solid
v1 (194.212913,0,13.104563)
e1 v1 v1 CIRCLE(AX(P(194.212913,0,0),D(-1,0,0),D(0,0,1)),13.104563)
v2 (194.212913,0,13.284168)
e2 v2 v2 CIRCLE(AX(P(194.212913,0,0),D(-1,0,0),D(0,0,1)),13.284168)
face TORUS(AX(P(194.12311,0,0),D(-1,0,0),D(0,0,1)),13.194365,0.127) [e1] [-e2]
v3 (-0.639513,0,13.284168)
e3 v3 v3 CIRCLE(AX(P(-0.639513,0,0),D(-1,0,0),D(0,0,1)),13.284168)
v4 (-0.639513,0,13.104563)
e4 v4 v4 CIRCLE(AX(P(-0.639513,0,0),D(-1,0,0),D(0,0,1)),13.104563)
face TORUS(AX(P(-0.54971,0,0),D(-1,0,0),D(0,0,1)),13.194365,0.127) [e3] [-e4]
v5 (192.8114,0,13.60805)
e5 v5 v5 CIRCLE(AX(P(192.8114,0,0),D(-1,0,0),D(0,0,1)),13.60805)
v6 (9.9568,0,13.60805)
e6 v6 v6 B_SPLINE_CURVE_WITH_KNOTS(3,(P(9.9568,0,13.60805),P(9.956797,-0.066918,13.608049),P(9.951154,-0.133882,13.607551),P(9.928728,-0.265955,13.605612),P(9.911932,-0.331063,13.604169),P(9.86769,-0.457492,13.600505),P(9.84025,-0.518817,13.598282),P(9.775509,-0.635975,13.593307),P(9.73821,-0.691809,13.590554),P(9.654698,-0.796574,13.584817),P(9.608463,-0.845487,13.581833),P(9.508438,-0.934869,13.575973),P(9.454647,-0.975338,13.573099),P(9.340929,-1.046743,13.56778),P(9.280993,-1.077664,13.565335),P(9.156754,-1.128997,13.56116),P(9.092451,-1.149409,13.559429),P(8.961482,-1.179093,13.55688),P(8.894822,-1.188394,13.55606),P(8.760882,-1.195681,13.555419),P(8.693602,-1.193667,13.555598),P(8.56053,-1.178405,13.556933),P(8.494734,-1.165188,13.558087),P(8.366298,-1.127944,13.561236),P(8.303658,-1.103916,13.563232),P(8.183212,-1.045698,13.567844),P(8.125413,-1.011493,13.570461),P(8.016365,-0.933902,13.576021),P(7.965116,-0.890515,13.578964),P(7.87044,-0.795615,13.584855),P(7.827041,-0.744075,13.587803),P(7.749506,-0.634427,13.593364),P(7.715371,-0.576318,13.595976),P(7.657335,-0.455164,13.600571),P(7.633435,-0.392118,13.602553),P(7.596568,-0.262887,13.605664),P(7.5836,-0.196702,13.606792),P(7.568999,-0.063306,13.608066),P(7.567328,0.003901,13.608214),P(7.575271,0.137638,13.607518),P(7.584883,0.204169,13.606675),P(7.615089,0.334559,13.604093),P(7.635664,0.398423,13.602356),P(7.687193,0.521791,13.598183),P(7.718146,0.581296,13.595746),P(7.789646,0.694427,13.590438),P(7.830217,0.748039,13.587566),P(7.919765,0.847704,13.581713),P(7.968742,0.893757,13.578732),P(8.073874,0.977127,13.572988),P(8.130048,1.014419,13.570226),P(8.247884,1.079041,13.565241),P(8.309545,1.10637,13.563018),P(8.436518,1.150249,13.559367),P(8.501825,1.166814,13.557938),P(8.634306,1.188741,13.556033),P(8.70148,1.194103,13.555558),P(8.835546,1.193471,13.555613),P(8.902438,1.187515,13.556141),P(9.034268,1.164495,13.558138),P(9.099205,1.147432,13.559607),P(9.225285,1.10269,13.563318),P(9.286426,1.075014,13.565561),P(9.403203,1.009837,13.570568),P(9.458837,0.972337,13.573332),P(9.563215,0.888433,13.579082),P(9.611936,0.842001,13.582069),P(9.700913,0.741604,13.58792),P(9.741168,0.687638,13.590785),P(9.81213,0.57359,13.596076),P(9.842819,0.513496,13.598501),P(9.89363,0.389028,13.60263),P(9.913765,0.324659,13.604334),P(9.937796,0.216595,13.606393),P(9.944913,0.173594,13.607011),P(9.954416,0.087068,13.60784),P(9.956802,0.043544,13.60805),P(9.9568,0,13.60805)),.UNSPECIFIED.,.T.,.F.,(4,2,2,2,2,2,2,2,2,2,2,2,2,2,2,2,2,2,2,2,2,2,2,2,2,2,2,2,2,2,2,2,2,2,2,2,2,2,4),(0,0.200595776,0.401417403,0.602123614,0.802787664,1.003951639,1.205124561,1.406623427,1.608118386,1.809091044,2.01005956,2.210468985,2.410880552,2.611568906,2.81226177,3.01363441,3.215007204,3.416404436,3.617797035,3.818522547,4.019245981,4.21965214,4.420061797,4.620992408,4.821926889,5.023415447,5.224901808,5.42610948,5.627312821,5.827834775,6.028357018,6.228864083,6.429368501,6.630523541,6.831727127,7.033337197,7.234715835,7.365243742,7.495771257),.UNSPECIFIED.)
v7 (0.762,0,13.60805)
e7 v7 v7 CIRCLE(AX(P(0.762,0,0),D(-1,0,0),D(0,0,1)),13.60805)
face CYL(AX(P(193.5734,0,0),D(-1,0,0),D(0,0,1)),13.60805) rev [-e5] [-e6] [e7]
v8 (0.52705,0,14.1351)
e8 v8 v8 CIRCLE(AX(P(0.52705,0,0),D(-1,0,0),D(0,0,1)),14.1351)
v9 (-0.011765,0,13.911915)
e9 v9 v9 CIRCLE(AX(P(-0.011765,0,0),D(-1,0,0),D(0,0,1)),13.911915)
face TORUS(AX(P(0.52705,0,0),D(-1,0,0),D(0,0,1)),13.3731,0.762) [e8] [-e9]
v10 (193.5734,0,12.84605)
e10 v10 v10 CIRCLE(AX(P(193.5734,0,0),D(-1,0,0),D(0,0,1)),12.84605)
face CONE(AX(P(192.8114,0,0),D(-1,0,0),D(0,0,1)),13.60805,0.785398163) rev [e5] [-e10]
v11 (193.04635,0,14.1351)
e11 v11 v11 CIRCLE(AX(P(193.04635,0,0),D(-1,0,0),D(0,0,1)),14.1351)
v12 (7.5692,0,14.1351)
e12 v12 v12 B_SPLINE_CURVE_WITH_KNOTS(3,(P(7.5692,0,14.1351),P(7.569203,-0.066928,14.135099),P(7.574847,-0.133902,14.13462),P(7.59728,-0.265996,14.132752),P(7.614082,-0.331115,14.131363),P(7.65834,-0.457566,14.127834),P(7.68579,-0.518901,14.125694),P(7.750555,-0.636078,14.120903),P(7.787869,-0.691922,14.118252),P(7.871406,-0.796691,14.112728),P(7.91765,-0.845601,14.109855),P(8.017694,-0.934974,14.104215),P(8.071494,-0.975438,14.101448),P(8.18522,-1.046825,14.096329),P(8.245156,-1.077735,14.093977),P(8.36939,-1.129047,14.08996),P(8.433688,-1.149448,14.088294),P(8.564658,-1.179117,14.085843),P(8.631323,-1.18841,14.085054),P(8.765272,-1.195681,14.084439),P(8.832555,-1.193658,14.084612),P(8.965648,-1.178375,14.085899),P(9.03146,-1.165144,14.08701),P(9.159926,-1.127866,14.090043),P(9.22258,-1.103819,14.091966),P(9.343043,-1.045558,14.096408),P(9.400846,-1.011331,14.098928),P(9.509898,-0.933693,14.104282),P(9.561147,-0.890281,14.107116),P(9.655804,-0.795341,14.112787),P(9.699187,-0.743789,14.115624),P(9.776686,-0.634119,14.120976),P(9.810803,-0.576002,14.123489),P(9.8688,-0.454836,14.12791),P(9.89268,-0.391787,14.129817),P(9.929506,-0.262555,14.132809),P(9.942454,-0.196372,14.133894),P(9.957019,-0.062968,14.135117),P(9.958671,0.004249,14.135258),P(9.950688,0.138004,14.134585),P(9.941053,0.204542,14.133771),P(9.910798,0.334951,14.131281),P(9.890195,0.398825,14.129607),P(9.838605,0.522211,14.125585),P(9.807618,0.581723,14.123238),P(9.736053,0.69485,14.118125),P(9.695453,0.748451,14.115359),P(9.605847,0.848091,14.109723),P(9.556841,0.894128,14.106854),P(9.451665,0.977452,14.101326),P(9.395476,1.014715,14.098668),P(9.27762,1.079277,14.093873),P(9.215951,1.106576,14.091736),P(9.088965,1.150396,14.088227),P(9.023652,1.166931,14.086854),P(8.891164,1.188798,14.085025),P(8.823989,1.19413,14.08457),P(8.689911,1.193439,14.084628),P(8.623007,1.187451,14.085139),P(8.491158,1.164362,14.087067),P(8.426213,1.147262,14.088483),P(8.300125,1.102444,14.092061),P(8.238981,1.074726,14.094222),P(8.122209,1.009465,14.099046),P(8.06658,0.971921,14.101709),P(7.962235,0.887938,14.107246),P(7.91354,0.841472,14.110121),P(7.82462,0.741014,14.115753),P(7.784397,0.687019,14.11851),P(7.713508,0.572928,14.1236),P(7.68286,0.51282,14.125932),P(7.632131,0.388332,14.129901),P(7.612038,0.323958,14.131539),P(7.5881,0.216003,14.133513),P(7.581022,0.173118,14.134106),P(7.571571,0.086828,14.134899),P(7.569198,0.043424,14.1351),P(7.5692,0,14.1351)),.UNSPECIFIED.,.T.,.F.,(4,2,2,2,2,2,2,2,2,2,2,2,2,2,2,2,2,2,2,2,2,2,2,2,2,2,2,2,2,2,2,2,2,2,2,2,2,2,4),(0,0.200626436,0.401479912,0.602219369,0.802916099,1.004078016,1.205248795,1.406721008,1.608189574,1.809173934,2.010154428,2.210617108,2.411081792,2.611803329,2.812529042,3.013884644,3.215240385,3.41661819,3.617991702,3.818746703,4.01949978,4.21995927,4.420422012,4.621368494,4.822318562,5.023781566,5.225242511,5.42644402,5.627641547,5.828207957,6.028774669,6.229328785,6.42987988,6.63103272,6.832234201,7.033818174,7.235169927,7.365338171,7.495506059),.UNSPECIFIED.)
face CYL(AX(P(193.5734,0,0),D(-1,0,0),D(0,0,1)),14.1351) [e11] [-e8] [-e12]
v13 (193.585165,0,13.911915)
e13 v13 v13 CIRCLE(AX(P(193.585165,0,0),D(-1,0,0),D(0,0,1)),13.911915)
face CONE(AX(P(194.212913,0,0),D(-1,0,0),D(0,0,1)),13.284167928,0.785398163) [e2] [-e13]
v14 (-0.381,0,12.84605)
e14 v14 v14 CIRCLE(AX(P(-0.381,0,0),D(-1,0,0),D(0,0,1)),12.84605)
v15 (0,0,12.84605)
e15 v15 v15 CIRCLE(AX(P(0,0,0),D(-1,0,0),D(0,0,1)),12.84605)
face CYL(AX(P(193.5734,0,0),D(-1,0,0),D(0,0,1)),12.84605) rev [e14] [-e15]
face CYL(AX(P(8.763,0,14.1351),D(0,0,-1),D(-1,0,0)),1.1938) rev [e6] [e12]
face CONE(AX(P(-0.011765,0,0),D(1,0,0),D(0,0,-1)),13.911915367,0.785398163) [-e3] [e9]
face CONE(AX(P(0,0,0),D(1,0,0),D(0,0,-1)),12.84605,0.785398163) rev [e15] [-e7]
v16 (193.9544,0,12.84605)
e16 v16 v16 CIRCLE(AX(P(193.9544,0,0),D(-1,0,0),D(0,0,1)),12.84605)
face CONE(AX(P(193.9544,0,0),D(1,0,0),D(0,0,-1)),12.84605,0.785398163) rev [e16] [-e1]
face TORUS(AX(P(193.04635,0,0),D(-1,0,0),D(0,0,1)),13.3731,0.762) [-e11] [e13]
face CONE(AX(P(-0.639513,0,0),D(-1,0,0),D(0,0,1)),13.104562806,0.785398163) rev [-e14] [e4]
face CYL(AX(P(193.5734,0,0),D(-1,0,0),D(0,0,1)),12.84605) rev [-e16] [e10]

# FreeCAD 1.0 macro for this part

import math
import FreeCAD as App
import Part
import Sketcher
from FreeCAD import Vector
Q = App.Units.Quantity

doc = App.newDocument("Part")
body = doc.addObject("PartDesign::Body", "Body")

sketch1 = body.newObject("Sketcher::SketchObject", "Sketch")
sketch1.AttachmentSupport = (doc.getObject("XY_Plane"), [""])
sketch1.MapMode = "FlatFace"
sketch1.addGeometry([
    Part.LineSegment(Vector(-0.639513, 13.104563, 0), Vector(-0.381, 12.84605, 0)),
    Part.LineSegment(Vector(-0.381, 12.84605, 0), Vector(0, 12.84605, 0)),
    Part.LineSegment(Vector(0, 12.84605, 0), Vector(0.762, 13.60805, 0)),
    Part.LineSegment(Vector(0.762, 13.60805, 0), Vector(192.8114, 13.60805, 0)),
    Part.LineSegment(Vector(192.8114, 13.60805, 0), Vector(193.5734, 12.84605, 0)),
    Part.LineSegment(Vector(193.5734, 12.84605, 0), Vector(193.9544, 12.84605, 0)),
    Part.LineSegment(Vector(193.9544, 12.84605, 0), Vector(194.212913, 13.104563, 0)),
    Part.ArcOfCircle(Part.Circle(Vector(194.12311, 13.194365, 0), Vector(0, 0, 1), 0.127), math.radians(-45), math.radians(45)),
    Part.LineSegment(Vector(194.212913, 13.284168, 0), Vector(193.585165, 13.911915, 0)),
    Part.ArcOfCircle(Part.Circle(Vector(193.04635, 13.3731, 0), Vector(0, 0, 1), 0.762), math.radians(45), math.radians(90)),
    Part.LineSegment(Vector(193.04635, 14.1351, 0), Vector(0.52705, 14.1351, 0)),
    Part.ArcOfCircle(Part.Circle(Vector(0.52705, 13.3731, 0), Vector(0, 0, 1), 0.762), math.radians(90), math.radians(135)),
    Part.LineSegment(Vector(-0.011765, 13.911915, 0), Vector(-0.639513, 13.284168, 0)),
    Part.ArcOfCircle(Part.Circle(Vector(-0.54971, 13.194365, 0), Vector(0, 0, 1), 0.127), math.radians(135), math.radians(225)),
], False)
sketch1.addConstraint([
    Sketcher.Constraint("Coincident", 0, 2, 1, 1),
    Sketcher.Constraint("Coincident", 1, 2, 2, 1),
    Sketcher.Constraint("Coincident", 2, 2, 3, 1),
    Sketcher.Constraint("Coincident", 3, 2, 4, 1),
    Sketcher.Constraint("Coincident", 4, 2, 5, 1),
    Sketcher.Constraint("Coincident", 5, 2, 6, 1),
    Sketcher.Constraint("Tangent", 6, 2, 7, 1),
    Sketcher.Constraint("Tangent", 7, 2, 8, 1),
    Sketcher.Constraint("Tangent", 8, 2, 9, 1),
    Sketcher.Constraint("Tangent", 9, 2, 10, 1),
    Sketcher.Constraint("Tangent", 10, 2, 11, 1),
    Sketcher.Constraint("Tangent", 11, 2, 12, 1),
    Sketcher.Constraint("Tangent", 12, 2, 13, 1),
    Sketcher.Constraint("Tangent", 13, 2, 0, 1),
    Sketcher.Constraint("Horizontal", 1),
    Sketcher.Constraint("Horizontal", 3),
    Sketcher.Constraint("Horizontal", 5),
    Sketcher.Constraint("Horizontal", 10),
    Sketcher.Constraint("Equal", 9, 11),
    Sketcher.Constraint("Equal", 7, 13),
    Sketcher.Constraint("PointOnObject", 1, 2, -2),
    Sketcher.Constraint("Perpendicular", 0, 2),
    Sketcher.Constraint("Perpendicular", 2, 4),
    Sketcher.Constraint("Perpendicular", 4, 6),
    Sketcher.Constraint("Perpendicular", 6, 8),
    Sketcher.Constraint("Perpendicular", 8, 12),
    Sketcher.Constraint("Horizontal", 7, 3, 13, 3),
    Sketcher.Constraint("Horizontal", 1, 2, 4, 2),
    Sketcher.Constraint("Horizontal", 8, 2, 11, 2),
    Sketcher.Constraint("Equal", 1, 5),
    Sketcher.Constraint("Radius", 9, Q("0.03 in")),
    Sketcher.Constraint("Radius", 7, Q("0.005 in")),
    Sketcher.Constraint("DistanceX", 1, 1, 1, 2, Q("0.015 in")),
    Sketcher.Constraint("DistanceX", 3, 1, 3, 2, Q("7.561 in")),
    Sketcher.Constraint("DistanceX", -1, 1, 2, 2, Q("0.03 in")),
    Sketcher.Constraint("DistanceX", 10, 2, 10, 1, Q("7.5795 in")),
    Sketcher.Constraint("DistanceY", -1, 1, 9, 3, Q("0.5265 in")),
    Sketcher.Constraint("Distance", 8, Q("0.887769 mm")),
])
revolution = body.newObject("PartDesign::Revolution", "Revolution")
revolution.Profile = sketch1
revolution.ReferenceAxis = (sketch1, ["H_Axis"])
revolution.Angle = 360

sketch2 = body.newObject("Sketcher::SketchObject", "Sketch001")
sketch2.AttachmentSupport = (doc.getObject("XY_Plane"), [""])
sketch2.MapMode = "FlatFace"
sketch2.addGeometry(Part.Circle(Vector(8.763, 0, 0), Vector(0, 0, 1), 1.1938), False)
sketch2.addConstraint([
    Sketcher.Constraint("PointOnObject", 0, 3, -1),
    Sketcher.Constraint("Diameter", 0, Q("0.094 in")),
    Sketcher.Constraint("DistanceX", -1, 1, 0, 3, Q("0.345 in")),
])
pocket1 = body.newObject("PartDesign::Pocket", "Pocket")
pocket1.Profile = sketch2
pocket1.Length = Q("0.5565 in")
pocket1.Reversed = True

doc.recompute()
